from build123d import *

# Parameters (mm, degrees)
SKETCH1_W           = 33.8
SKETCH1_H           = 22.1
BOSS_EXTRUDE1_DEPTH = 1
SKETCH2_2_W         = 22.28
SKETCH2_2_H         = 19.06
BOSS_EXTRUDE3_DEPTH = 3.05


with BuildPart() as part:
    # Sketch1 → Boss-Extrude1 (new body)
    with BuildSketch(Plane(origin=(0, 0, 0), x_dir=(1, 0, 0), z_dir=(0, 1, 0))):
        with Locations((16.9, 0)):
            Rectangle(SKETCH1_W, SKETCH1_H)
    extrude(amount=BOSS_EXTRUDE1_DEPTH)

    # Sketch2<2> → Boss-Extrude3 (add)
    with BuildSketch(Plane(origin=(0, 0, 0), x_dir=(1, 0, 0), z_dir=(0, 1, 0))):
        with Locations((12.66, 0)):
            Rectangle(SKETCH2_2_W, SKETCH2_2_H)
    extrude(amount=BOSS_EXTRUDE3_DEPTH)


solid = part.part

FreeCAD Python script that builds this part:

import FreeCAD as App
import Part
import Sketcher

V = App.Vector
Q = App.Units.Quantity


def add_polygon(sketch, points):
    """Adds a closed chain of lines whose ends are joined by coincident constraints."""
    first, n = sketch.GeometryCount, len(points)
    for a, b in zip(points, points[1:] + points[:1]):
        sketch.addGeometry(Part.LineSegment(App.Vector(*a, 0), App.Vector(*b, 0)), False)
    for i in range(n):
        sketch.addConstraint(Sketcher.Constraint("Coincident", first + i, 2, first + (i + 1) % n, 1))

doc = App.newDocument("Part")
body = doc.addObject("PartDesign::Body", "Body")

# Sketch on XZ plane
sketch1 = body.newObject("Sketcher::SketchObject", "Sketch")
sketch1.AttachmentSupport = (doc.getObject("XZ_Plane"), [""])
sketch1.MapMode = "FlatFace"
add_polygon(sketch1, [(0, -11), (0, 11), (34, 11), (34, -11)])  # lines 0-3
sketch1.addConstraint([
    Sketcher.Constraint("Vertical", 0),
    Sketcher.Constraint("Horizontal", 1),
    Sketcher.Constraint("Vertical", 2),
    Sketcher.Constraint("Horizontal", 3),
    Sketcher.Constraint("Symmetric", 0, 2, 3, 2, -1, 1),
    Sketcher.Constraint("DistanceX", 1, 1, 1, 2, Q("33.8 mm")),
    Sketcher.Constraint("DistanceY", 0, 1, 0, 2, Q("22.1 mm")),
])
pad1 = body.newObject("PartDesign::Pad", "Pad")
pad1.Profile = sketch1
pad1.Length = 1
pad1.Reversed = True

# Sketch on XZ plane
sketch2 = body.newObject("Sketcher::SketchObject", "Sketch001")
sketch2.AttachmentSupport = (doc.getObject("XZ_Plane"), [""])
sketch2.MapMode = "FlatFace"
add_polygon(sketch2, [(2, -10), (2, 10), (24, 10), (24, -10)])  # lines 0-3
sketch2.addConstraint([
    Sketcher.Constraint("Vertical", 0),
    Sketcher.Constraint("Horizontal", 1),
    Sketcher.Constraint("Vertical", 2),
    Sketcher.Constraint("Horizontal", 3),
    Sketcher.Constraint("DistanceX", 1, 1, 1, 2, Q("22.28 mm")),
    Sketcher.Constraint("DistanceY", 0, 1, 0, 2, Q("19.06 mm")),
    Sketcher.Constraint("DistanceX", -1, 1, 1, 2, Q("23.8 mm")),
    Sketcher.Constraint("DistanceY", -1, 1, 0, 2, Q("9.53 mm")),
])
pad2 = body.newObject("PartDesign::Pad", "Pad001")
pad2.Profile = sketch2
pad2.Length = 3.05
pad2.Reversed = True

doc.recompute()
